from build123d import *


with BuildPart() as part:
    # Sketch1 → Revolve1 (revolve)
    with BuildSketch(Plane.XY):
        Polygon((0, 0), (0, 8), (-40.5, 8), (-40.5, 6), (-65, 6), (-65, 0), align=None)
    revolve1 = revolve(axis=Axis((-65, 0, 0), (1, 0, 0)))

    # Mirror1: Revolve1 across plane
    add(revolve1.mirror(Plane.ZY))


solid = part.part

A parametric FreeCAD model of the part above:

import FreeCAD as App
import Part
import Sketcher
from FreeCAD import Vector


def add_polygon(sketch, points):
    """Adds a closed chain of lines whose ends are joined by coincident constraints."""
    first, n = sketch.GeometryCount, len(points)
    for a, b in zip(points, points[1:] + points[:1]):
        sketch.addGeometry(Part.LineSegment(App.Vector(*a, 0), App.Vector(*b, 0)), False)
    for i in range(n):
        sketch.addConstraint(Sketcher.Constraint("Coincident", first + i, 2, first + (i + 1) % n, 1))

doc = App.newDocument("Part")
body = doc.addObject("PartDesign::Body", "Body")

sketch1 = doc.addObject("Sketcher::SketchObject", "Sketch")
body.addObject(sketch1)
sketch1.AttachmentSupport = (doc.XY_Plane, [""])
sketch1.MapMode = "FlatFace"
add_polygon(sketch1, [(0, 0), (0, 8), (-40.5, 8), (-40.5, 6), (-65, 6), (-65, 0)])
sketch1.addConstraint([
    Sketcher.Constraint("Vertical", 0),
    Sketcher.Constraint("Horizontal", 1),
    Sketcher.Constraint("Vertical", 2),
    Sketcher.Constraint("Horizontal", 3),
    Sketcher.Constraint("Vertical", 4),
    Sketcher.Constraint("Horizontal", 5),
    Sketcher.Constraint("Coincident", 5, 2, -1, 1),
    Sketcher.Constraint("DistanceX", 5, 1, 5, 2, 65.0),
    Sketcher.Constraint("DistanceY", 0, 1, 0, 2, 8.0),
    Sketcher.Constraint("DistanceY", 2, 2, 2, 1, 2.0),
    Sketcher.Constraint("DistanceX", 1, 2, 1, 1, 40.5),
])
revolution = doc.addObject("PartDesign::Revolution", "Revolution")
body.addObject(revolution)
revolution.Profile = sketch1
revolution.ReferenceAxis = (sketch1, ["H_Axis"])
revolution.Angle = 360
doc.recompute()

mirrored = doc.addObject("PartDesign::Mirrored", "Mirrored")
body.addObject(mirrored)
mirrored.Originals = [revolution]
mirrored.MirrorPlane = (doc.YZ_Plane, [""])
body.Tip = mirrored

doc.recompute()
